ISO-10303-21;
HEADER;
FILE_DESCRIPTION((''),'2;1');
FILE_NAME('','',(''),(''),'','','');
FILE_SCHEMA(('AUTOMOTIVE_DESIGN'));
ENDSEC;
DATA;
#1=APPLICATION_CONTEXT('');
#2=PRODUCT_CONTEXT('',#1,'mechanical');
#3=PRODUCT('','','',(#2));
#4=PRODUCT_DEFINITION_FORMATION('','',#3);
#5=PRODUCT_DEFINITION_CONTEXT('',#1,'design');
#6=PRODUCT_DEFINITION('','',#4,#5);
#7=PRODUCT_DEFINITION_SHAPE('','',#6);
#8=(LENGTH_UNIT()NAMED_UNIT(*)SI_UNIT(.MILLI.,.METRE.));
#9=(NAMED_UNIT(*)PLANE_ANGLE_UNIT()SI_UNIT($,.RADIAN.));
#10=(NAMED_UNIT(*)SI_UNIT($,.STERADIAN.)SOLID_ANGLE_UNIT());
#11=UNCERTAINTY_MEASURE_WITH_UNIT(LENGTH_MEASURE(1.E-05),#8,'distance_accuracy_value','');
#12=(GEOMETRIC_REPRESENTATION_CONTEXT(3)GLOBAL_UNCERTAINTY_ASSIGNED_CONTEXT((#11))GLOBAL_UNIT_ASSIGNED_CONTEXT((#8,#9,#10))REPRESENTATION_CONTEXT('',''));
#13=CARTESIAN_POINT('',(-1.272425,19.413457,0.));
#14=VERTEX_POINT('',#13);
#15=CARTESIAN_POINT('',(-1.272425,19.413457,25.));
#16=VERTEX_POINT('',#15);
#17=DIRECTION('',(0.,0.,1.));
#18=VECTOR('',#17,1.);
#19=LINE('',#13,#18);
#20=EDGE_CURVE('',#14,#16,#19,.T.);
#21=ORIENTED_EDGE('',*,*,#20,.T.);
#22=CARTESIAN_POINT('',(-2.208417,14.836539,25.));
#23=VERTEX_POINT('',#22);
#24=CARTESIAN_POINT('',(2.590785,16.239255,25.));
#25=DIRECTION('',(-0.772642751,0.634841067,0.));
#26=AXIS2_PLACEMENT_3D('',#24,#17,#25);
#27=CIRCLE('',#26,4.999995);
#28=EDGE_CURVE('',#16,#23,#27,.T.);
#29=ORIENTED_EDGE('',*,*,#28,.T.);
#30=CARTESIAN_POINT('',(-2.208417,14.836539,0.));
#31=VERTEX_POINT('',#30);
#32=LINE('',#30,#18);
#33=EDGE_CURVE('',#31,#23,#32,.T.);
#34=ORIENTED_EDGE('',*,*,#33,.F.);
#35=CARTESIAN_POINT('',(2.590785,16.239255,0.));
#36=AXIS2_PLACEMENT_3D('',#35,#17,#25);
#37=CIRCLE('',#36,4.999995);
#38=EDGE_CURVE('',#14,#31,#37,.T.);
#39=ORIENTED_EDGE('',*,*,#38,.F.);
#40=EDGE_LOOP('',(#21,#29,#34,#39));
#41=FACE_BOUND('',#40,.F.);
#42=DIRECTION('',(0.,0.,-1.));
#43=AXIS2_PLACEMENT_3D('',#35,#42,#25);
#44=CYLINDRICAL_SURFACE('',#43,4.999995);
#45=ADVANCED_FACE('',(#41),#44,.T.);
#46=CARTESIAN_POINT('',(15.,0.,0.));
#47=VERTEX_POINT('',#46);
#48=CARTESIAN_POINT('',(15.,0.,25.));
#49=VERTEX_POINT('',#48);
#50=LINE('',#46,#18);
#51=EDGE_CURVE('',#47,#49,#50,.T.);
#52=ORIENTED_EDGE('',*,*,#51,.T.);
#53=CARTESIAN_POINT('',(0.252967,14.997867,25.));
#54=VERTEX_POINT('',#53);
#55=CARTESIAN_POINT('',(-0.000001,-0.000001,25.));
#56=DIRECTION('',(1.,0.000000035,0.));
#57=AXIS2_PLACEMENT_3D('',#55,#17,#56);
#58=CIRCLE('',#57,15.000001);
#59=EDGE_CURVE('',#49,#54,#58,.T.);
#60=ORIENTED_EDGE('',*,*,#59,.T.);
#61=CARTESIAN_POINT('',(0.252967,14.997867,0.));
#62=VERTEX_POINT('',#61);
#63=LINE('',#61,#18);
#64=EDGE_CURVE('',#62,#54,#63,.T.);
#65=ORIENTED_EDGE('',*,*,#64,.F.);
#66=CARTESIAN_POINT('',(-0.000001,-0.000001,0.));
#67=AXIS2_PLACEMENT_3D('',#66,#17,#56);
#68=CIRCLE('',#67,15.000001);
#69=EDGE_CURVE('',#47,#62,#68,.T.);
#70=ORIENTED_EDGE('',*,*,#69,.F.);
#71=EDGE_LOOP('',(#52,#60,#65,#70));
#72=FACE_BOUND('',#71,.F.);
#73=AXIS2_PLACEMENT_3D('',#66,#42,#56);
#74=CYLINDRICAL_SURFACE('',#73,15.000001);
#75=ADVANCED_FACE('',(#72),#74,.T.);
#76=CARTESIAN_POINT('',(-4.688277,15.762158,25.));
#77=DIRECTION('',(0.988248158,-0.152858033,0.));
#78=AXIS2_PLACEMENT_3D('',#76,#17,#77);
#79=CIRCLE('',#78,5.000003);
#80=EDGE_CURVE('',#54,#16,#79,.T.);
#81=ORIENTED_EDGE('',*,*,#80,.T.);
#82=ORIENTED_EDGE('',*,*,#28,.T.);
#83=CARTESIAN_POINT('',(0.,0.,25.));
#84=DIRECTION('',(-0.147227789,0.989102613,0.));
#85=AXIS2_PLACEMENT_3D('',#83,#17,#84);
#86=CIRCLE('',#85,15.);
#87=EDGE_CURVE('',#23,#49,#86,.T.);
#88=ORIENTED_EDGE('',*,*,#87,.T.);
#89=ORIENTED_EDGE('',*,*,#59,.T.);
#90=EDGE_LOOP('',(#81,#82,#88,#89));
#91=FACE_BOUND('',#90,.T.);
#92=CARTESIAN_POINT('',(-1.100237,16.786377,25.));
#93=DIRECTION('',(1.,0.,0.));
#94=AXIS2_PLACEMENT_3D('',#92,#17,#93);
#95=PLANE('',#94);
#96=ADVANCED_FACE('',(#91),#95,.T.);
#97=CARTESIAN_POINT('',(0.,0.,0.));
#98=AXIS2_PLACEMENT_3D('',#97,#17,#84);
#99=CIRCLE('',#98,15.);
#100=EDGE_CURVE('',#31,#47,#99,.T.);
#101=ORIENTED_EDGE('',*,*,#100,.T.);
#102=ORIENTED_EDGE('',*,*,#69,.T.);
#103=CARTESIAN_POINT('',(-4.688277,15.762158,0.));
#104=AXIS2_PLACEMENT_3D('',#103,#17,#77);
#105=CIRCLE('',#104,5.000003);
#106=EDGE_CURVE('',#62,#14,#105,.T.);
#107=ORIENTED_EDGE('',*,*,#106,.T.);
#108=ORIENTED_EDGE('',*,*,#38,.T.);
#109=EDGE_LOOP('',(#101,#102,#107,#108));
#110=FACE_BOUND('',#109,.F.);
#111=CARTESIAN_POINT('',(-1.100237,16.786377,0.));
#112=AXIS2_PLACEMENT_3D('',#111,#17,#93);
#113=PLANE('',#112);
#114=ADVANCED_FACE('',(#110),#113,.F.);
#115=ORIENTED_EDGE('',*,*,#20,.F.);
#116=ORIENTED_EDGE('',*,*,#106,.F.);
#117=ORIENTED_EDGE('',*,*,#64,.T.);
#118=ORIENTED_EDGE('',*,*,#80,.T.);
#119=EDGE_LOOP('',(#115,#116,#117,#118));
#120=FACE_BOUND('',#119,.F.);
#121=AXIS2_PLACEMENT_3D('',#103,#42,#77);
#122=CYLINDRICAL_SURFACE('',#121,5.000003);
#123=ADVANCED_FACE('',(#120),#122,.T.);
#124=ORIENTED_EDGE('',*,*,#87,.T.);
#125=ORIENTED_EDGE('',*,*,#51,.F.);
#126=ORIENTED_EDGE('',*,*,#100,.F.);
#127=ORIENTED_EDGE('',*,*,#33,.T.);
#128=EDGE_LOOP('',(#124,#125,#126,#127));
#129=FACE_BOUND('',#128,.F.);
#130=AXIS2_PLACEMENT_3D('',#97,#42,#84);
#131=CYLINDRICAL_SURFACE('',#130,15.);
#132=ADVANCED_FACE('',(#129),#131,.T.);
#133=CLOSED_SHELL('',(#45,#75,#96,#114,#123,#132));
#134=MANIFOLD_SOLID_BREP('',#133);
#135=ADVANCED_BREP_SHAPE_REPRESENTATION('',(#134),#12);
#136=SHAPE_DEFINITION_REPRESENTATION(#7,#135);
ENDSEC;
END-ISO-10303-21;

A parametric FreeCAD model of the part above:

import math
import FreeCAD as App
import Part
import Sketcher

V = App.Vector
Q = App.Units.Quantity

doc = App.newDocument("Part")
params = doc.addObject("Spreadsheet::Sheet", "Params")
for row, (alias, value) in enumerate([
    ("sketch1_radius", "15 mm"),
    ("pad1_length", "25 mm"),
], start=1):
    params.set(f"A{row}", alias)
    params.set(f"B{row}", "=" + value)
    params.setAlias(f"B{row}", alias)

body = doc.addObject("PartDesign::Body", "Body")

# Sketch on XY plane
sketch1 = body.newObject("Sketcher::SketchObject", "Sketch")
sketch1.AttachmentSupport = (doc.getObject("XY_Plane"), [""])
sketch1.MapMode = "FlatFace"
sketch1.addGeometry([
    Part.ArcOfCircle(Part.Circle(V(-4.7, 15.8, 0), V(0, 0, 1), 5), math.radians(-9), math.radians(47)),
    Part.ArcOfCircle(Part.Circle(V(2.6, 16.2, 0), V(0, 0, 1), 5), math.radians(141), math.radians(196)),
    Part.ArcOfCircle(Part.Circle(V(0, 0, 0), V(0, 0, 1), 15), math.radians(98), math.radians(360)),
    Part.ArcOfCircle(Part.Circle(V(0, 0, 0), V(0, 0, 1), 15), math.radians(0), math.radians(89)),
], False)
sketch1.addConstraint([
    Sketcher.Constraint("Coincident", 0, 2, 1, 1),
    Sketcher.Constraint("Coincident", 1, 2, 2, 1),
    Sketcher.Constraint("Tangent", 2, 2, 3, 1),
    Sketcher.Constraint("Coincident", 3, 2, 0, 1),
    Sketcher.Constraint("Coincident", 2, 3, -1, 1),
    Sketcher.Constraint("Equal", 2, 3),
    Sketcher.Constraint("PointOnObject", 2, 2, -1),
    Sketcher.Constraint("Radius", 2, Q("15 mm")),
    Sketcher.Constraint("Radius", 0, Q("5.000003 mm")),
    Sketcher.Constraint("Radius", 1, Q("4.999995 mm")),
    Sketcher.Constraint("DistanceY", 0, 3, 0, 2, Q("3.651299 mm")),
    Sketcher.Constraint("DistanceX", 1, 2, 1, 3, Q("4.799202 mm")),
    Sketcher.Constraint("DistanceY", -1, 1, 1, 2, Q("14.836539 mm")),
    Sketcher.Constraint("DistanceX", 0, 3, 1, 3, Q("7.279062 mm")),
])
sketch1.setExpression("Constraints[7]", "Params.sketch1_radius")
pad1 = body.newObject("PartDesign::Pad", "Pad")
pad1.Profile = sketch1
pad1.setExpression("Length", "Params.pad1_length")

doc.recompute()
